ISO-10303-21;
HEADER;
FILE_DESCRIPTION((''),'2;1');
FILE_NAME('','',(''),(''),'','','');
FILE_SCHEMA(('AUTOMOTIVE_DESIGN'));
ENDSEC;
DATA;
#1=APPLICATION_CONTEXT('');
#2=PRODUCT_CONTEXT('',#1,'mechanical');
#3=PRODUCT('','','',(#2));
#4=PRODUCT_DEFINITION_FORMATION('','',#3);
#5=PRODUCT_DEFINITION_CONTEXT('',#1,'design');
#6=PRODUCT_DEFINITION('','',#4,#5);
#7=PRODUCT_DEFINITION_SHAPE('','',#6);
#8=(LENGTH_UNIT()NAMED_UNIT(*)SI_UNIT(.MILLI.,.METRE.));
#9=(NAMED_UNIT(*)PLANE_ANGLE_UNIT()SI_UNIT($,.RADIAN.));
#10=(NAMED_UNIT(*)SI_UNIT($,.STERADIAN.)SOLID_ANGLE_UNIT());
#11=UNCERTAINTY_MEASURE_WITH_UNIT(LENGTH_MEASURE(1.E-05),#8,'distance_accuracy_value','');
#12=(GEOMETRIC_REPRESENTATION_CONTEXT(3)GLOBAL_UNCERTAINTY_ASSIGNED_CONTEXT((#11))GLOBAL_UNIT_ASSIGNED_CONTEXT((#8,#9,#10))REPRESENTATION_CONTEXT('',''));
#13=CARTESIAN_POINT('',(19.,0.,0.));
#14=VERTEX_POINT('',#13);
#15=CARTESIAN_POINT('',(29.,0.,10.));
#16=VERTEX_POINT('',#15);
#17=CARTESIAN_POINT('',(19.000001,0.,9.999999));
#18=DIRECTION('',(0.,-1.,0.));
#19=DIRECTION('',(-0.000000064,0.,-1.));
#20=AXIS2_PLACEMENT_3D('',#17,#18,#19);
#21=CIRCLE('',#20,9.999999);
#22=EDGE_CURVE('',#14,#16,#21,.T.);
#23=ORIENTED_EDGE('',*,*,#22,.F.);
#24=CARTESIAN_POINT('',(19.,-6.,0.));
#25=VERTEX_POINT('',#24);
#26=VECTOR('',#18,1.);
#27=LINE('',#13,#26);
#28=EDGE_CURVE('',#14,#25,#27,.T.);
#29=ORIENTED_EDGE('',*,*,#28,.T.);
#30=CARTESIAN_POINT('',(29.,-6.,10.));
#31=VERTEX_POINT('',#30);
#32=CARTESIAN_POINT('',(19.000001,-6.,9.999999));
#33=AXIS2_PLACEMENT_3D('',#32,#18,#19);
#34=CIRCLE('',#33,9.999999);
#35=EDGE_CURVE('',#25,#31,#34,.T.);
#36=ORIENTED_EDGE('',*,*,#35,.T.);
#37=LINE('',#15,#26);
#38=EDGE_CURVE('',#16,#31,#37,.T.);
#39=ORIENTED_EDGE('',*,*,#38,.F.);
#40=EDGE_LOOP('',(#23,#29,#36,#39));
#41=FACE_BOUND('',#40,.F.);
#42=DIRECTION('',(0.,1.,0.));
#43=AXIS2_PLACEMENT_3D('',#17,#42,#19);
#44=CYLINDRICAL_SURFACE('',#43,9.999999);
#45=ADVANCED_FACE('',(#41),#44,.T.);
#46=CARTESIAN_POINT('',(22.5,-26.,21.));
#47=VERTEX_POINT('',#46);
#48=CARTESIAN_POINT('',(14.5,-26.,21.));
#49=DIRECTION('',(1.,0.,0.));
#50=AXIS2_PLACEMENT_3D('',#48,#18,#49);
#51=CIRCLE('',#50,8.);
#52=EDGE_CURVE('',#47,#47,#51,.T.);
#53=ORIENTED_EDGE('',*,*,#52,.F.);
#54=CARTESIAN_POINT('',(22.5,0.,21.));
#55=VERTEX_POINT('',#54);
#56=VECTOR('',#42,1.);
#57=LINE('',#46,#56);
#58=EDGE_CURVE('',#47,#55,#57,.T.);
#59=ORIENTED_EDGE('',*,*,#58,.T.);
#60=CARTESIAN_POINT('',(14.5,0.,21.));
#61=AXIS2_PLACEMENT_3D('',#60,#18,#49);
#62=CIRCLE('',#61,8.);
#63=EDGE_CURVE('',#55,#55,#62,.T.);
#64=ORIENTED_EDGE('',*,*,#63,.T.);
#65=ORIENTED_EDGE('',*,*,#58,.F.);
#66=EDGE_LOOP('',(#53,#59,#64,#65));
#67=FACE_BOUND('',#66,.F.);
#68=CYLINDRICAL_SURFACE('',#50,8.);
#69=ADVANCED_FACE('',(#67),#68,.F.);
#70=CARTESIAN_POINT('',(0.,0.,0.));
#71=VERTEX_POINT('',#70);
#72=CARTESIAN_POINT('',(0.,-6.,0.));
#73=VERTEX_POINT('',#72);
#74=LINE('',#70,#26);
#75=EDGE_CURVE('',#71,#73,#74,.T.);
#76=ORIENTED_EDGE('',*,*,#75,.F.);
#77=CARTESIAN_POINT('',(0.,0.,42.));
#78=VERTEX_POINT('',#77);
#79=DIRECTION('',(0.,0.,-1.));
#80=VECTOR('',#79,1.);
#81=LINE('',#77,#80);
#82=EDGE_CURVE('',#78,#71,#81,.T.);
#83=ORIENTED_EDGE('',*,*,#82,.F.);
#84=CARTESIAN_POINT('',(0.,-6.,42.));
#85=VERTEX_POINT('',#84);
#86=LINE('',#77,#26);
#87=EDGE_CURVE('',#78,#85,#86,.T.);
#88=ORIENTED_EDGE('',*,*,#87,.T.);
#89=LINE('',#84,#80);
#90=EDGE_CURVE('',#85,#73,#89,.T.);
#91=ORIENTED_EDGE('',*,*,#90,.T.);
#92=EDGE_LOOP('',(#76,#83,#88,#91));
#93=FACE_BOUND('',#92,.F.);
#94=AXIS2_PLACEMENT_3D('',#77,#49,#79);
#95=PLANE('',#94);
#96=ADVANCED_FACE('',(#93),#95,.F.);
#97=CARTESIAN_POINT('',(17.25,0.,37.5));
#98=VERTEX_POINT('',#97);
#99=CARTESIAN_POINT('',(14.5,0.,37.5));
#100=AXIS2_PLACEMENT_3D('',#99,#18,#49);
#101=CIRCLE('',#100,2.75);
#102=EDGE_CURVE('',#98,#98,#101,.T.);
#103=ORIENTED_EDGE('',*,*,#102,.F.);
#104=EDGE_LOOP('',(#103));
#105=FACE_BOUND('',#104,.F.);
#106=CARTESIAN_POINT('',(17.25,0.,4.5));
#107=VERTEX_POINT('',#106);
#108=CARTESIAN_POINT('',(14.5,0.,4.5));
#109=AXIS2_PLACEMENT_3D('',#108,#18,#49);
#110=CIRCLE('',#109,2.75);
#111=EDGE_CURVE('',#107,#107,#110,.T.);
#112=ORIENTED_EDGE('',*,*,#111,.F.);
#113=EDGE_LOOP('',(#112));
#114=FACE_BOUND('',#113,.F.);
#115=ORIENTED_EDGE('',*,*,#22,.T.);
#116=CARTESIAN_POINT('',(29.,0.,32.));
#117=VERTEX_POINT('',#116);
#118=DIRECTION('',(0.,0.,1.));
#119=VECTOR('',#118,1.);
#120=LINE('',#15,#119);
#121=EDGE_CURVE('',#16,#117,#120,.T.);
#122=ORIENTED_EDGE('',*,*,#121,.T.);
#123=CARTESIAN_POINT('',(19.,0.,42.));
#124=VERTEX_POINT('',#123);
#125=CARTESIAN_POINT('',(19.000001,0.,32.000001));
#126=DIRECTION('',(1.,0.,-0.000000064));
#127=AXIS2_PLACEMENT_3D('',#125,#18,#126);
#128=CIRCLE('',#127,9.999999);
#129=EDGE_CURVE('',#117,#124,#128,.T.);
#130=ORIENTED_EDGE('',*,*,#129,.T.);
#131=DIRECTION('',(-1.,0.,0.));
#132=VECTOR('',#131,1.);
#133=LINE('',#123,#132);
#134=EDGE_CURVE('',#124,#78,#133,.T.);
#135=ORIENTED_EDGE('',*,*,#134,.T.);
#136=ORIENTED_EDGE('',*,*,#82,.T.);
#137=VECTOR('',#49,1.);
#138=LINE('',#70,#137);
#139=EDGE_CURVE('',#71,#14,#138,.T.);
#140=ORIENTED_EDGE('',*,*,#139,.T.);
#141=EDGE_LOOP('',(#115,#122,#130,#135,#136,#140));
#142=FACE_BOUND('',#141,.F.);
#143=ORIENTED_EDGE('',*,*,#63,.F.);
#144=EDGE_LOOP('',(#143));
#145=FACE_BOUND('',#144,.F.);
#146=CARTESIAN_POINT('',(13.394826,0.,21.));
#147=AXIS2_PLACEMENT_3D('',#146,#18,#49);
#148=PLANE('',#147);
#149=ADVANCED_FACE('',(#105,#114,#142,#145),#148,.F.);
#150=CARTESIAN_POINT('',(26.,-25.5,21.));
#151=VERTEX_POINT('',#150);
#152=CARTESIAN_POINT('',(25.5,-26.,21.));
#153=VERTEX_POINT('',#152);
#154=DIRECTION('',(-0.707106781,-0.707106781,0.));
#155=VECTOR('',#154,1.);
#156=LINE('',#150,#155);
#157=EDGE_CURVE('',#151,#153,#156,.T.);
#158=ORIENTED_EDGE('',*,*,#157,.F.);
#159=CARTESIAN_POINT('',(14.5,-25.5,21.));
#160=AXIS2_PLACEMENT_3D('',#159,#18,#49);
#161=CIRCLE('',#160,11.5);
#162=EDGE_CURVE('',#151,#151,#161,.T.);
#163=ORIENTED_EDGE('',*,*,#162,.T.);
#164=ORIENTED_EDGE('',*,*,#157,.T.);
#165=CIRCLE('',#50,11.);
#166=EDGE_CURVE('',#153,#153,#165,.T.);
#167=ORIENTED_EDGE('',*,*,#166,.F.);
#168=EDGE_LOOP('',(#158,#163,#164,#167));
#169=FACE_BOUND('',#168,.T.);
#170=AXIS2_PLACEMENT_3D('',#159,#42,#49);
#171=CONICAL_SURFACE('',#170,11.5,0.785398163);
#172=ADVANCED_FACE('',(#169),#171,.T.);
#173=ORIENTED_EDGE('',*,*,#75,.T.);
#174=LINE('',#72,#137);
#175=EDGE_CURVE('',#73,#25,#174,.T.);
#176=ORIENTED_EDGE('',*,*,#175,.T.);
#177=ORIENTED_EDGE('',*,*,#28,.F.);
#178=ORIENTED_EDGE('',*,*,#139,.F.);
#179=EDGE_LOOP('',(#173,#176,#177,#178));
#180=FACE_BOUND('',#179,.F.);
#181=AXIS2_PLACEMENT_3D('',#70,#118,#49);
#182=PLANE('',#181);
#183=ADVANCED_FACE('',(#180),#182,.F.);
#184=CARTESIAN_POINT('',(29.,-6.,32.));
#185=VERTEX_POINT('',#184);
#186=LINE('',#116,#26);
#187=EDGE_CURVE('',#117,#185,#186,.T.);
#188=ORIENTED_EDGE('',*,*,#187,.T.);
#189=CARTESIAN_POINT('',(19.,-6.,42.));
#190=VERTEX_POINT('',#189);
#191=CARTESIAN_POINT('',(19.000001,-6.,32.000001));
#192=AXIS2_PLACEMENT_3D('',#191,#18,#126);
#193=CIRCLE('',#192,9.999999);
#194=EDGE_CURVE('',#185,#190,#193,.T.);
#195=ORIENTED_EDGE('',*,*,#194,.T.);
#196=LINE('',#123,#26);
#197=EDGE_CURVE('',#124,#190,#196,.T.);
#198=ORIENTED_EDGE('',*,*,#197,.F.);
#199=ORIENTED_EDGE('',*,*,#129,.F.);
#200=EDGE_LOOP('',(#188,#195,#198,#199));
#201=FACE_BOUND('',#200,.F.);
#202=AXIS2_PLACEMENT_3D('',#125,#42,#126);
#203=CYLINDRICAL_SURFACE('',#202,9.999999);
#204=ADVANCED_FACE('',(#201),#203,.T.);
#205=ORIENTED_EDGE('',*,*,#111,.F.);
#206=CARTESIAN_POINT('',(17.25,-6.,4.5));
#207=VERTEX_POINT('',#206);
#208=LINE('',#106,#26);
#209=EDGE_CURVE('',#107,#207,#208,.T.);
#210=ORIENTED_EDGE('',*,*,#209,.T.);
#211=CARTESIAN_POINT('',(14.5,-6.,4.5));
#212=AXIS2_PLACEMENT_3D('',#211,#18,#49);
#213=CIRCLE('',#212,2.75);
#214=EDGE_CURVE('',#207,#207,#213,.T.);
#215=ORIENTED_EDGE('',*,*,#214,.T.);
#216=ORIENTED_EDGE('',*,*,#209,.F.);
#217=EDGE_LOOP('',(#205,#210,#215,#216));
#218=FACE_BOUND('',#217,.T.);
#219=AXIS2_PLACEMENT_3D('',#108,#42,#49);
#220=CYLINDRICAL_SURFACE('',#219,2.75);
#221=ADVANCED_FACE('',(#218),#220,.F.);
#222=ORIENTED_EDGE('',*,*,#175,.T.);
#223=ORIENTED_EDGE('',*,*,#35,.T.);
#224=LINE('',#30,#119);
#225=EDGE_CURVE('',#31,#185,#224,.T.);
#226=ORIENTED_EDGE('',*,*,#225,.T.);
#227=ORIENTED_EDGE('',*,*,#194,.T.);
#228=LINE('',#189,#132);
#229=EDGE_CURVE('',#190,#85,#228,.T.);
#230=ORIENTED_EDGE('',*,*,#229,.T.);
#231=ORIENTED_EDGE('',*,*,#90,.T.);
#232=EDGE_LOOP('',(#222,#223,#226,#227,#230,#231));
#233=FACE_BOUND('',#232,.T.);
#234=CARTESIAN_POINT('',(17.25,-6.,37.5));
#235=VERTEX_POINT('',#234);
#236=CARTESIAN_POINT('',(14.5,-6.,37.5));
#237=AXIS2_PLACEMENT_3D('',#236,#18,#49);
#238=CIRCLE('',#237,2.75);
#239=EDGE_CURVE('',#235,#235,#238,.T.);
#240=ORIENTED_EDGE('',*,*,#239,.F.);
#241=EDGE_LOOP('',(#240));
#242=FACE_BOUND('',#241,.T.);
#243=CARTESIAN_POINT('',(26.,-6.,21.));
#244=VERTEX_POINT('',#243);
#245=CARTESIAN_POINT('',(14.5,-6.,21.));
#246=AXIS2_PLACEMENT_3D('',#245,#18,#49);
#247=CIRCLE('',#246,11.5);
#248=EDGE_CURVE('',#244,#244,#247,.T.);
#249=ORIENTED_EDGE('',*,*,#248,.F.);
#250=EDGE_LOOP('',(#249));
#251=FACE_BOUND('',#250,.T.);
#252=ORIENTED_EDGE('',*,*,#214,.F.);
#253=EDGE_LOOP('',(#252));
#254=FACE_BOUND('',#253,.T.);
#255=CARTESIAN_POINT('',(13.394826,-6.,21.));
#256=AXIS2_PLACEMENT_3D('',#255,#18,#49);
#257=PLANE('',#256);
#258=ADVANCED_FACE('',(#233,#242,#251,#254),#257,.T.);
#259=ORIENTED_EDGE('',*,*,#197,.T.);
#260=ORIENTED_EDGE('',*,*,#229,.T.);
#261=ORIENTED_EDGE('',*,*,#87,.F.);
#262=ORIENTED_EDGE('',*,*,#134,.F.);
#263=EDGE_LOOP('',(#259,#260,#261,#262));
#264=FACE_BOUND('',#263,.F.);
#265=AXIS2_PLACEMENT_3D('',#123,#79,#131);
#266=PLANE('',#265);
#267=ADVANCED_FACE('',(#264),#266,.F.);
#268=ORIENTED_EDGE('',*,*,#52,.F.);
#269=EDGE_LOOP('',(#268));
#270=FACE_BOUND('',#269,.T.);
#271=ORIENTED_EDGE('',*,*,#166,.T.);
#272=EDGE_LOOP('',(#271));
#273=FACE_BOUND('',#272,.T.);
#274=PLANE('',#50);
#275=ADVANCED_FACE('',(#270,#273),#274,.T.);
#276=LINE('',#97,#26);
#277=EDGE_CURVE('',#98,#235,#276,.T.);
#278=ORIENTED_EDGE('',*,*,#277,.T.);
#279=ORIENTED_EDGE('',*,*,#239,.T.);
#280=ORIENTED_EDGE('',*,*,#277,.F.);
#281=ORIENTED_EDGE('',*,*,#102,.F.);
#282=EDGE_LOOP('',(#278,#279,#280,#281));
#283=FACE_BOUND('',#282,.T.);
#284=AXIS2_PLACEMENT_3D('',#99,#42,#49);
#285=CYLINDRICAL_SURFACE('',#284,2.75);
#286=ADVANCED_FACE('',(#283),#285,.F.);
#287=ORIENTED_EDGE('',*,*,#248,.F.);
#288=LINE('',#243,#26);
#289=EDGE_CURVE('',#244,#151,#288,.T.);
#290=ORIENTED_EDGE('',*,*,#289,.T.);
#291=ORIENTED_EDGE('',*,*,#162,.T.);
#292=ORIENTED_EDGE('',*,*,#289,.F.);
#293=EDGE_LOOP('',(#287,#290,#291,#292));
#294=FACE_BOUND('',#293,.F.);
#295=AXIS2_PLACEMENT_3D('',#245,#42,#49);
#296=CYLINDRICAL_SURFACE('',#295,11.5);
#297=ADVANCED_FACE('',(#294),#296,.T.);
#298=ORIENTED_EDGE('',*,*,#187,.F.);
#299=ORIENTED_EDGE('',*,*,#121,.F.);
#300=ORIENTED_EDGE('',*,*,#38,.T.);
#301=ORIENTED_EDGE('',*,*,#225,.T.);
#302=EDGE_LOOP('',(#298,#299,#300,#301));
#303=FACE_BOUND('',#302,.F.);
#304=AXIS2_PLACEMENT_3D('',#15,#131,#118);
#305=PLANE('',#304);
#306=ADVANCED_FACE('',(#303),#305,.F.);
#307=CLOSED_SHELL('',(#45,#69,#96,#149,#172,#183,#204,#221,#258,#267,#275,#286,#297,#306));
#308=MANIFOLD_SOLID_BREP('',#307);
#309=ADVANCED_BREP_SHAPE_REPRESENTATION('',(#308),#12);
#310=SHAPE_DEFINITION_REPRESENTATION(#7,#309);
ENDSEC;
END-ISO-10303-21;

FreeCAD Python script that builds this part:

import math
import FreeCAD as App
import Part
import Sketcher
from FreeCAD import Vector


def edges_at(feature, points):
    """Names of the edges that pass closest to the given points."""
    edges = feature.Shape.Edges
    near = lambda p: min(range(len(edges)), key=lambda i: edges[i].distToShape(Part.Vertex(*p))[0])
    return sorted({f"Edge{near(p) + 1}" for p in points})

doc = App.newDocument("Part")
params = doc.addObject("Spreadsheet::Sheet", "Params")
for row, (alias, value) in enumerate([
    ("sketch1_radius", "9.999999 mm"),
    ("sketch1_diameter", "5.5 mm"),
    ("sketch1_width", "19 mm"),
    ("sketch1_height", "42 mm"),
    ("pad1_length", "6 mm"),
    ("sketch2_diameter", "23 mm"),
    ("pad2_length", "20 mm"),
    ("sketch3_diameter", "16 mm"),
    ("chamfer_size", "0.5 mm"),
], start=1):
    params.set(f"A{row}", alias)
    params.set(f"B{row}", "=" + value)
    params.setAlias(f"B{row}", alias)

body = doc.addObject("PartDesign::Body", "Body")

sketch1 = body.newObject("Sketcher::SketchObject", "Sketch")
sketch1.AttachmentSupport = (doc.getObject("XZ_Plane"), [""])
sketch1.MapMode = "FlatFace"
sketch1.addGeometry([
    Part.LineSegment(Vector(0, 42, 0), Vector(0, 0, 0)),
    Part.LineSegment(Vector(0, 0, 0), Vector(19, 0, 0)),
    Part.ArcOfCircle(Part.Circle(Vector(19.000001, 9.999999, 0), Vector(0, 0, 1), 9.999999), math.radians(-90.000004), math.radians(0.000004)),
    Part.LineSegment(Vector(29, 10, 0), Vector(29, 32, 0)),
    Part.ArcOfCircle(Part.Circle(Vector(19.000001, 32.000001, 0), Vector(0, 0, 1), 9.999999), math.radians(-0.000004), math.radians(90.000004)),
    Part.LineSegment(Vector(19, 42, 0), Vector(0, 42, 0)),
    Part.Circle(Vector(14.5, 4.5, 0), Vector(0, 0, 1), 2.75),
    Part.Circle(Vector(14.5, 37.5, 0), Vector(0, 0, 1), 2.75),
], False)
sketch1.addConstraint([
    Sketcher.Constraint("Coincident", 0, 2, 1, 1),
    Sketcher.Constraint("Tangent", 1, 2, 2, 1),
    Sketcher.Constraint("Tangent", 2, 2, 3, 1),
    Sketcher.Constraint("Tangent", 3, 2, 4, 1),
    Sketcher.Constraint("Tangent", 4, 2, 5, 1),
    Sketcher.Constraint("Coincident", 5, 2, 0, 1),
    Sketcher.Constraint("Vertical", 0),
    Sketcher.Constraint("Horizontal", 1),
    Sketcher.Constraint("Vertical", 3),
    Sketcher.Constraint("Horizontal", 5),
    Sketcher.Constraint("Coincident", 0, 2, -1, 1),
    Sketcher.Constraint("Equal", 2, 4),
    Sketcher.Constraint("Equal", 6, 7),
    Sketcher.Constraint("Vertical", 6, 3, 7, 3),
    Sketcher.Constraint("Radius", 2, 9.999999),
    Sketcher.Constraint("Diameter", 6, 5.5),
    Sketcher.Constraint("DistanceX", 1, 1, 1, 2, 19.0),
    Sketcher.Constraint("DistanceY", 0, 2, 0, 1, 42.0),
    Sketcher.Constraint("DistanceY", 6, 3, 7, 3, 33.0),
    Sketcher.Constraint("DistanceX", -1, 1, 6, 3, 14.5),
    Sketcher.Constraint("DistanceY", -1, 1, 6, 3, 4.5),
])
sketch1.setExpression("Constraints[14]", "Params.sketch1_radius")
sketch1.setExpression("Constraints[15]", "Params.sketch1_diameter")
sketch1.setExpression("Constraints[16]", "Params.sketch1_width")
sketch1.setExpression("Constraints[17]", "Params.sketch1_height")
pad1 = body.newObject("PartDesign::Pad", "Pad")
pad1.Profile = sketch1
pad1.setExpression("Length", "Params.pad1_length")

sketch2 = body.newObject("Sketcher::SketchObject", "Sketch001")
sketch2.AttachmentSupport = (doc.getObject("XZ_Plane"), [""])
sketch2.MapMode = "FlatFace"
sketch2.AttachmentOffset = App.Placement(Vector(0, 0, 6), App.Rotation())
sketch2.addGeometry(Part.Circle(Vector(14.5, 21, 0), Vector(0, 0, 1), 11.5), False)
sketch2.addConstraint([
    Sketcher.Constraint("Diameter", 0, 23.0),
    Sketcher.Constraint("DistanceY", -1, 1, 0, 3, 21.0),
    Sketcher.Constraint("DistanceX", -1, 1, 0, 3, 14.5),
])
sketch2.setExpression("Constraints[0]", "Params.sketch2_diameter")
pad2 = body.newObject("PartDesign::Pad", "Pad001")
pad2.Profile = sketch2
pad2.setExpression("Length", "Params.pad2_length")

sketch3 = body.newObject("Sketcher::SketchObject", "Sketch002")
sketch3.AttachmentSupport = (doc.getObject("XZ_Plane"), [""])
sketch3.MapMode = "FlatFace"
sketch3.AttachmentOffset = App.Placement(Vector(0, 0, 26), App.Rotation())
sketch3.addGeometry(Part.Circle(Vector(14.5, 21, 0), Vector(0, 0, 1), 8), False)
sketch3.addConstraint([
    Sketcher.Constraint("Diameter", 0, 16.0),
    Sketcher.Constraint("DistanceY", -1, 1, 0, 3, 21.0),
    Sketcher.Constraint("DistanceX", -1, 1, 0, 3, 14.5),
])
sketch3.setExpression("Constraints[0]", "Params.sketch3_diameter")
pocket1 = body.newObject("PartDesign::Pocket", "Pocket")
pocket1.Profile = sketch3
pocket1.Type = "ThroughAll"
doc.recompute()

chamfer = body.newObject("PartDesign::Chamfer", "Chamfer")
chamfer.Base = (pocket1, edges_at(pocket1, [(3, -26, 21)]))
chamfer.setExpression("Size", "Params.chamfer_size")

doc.recompute()
